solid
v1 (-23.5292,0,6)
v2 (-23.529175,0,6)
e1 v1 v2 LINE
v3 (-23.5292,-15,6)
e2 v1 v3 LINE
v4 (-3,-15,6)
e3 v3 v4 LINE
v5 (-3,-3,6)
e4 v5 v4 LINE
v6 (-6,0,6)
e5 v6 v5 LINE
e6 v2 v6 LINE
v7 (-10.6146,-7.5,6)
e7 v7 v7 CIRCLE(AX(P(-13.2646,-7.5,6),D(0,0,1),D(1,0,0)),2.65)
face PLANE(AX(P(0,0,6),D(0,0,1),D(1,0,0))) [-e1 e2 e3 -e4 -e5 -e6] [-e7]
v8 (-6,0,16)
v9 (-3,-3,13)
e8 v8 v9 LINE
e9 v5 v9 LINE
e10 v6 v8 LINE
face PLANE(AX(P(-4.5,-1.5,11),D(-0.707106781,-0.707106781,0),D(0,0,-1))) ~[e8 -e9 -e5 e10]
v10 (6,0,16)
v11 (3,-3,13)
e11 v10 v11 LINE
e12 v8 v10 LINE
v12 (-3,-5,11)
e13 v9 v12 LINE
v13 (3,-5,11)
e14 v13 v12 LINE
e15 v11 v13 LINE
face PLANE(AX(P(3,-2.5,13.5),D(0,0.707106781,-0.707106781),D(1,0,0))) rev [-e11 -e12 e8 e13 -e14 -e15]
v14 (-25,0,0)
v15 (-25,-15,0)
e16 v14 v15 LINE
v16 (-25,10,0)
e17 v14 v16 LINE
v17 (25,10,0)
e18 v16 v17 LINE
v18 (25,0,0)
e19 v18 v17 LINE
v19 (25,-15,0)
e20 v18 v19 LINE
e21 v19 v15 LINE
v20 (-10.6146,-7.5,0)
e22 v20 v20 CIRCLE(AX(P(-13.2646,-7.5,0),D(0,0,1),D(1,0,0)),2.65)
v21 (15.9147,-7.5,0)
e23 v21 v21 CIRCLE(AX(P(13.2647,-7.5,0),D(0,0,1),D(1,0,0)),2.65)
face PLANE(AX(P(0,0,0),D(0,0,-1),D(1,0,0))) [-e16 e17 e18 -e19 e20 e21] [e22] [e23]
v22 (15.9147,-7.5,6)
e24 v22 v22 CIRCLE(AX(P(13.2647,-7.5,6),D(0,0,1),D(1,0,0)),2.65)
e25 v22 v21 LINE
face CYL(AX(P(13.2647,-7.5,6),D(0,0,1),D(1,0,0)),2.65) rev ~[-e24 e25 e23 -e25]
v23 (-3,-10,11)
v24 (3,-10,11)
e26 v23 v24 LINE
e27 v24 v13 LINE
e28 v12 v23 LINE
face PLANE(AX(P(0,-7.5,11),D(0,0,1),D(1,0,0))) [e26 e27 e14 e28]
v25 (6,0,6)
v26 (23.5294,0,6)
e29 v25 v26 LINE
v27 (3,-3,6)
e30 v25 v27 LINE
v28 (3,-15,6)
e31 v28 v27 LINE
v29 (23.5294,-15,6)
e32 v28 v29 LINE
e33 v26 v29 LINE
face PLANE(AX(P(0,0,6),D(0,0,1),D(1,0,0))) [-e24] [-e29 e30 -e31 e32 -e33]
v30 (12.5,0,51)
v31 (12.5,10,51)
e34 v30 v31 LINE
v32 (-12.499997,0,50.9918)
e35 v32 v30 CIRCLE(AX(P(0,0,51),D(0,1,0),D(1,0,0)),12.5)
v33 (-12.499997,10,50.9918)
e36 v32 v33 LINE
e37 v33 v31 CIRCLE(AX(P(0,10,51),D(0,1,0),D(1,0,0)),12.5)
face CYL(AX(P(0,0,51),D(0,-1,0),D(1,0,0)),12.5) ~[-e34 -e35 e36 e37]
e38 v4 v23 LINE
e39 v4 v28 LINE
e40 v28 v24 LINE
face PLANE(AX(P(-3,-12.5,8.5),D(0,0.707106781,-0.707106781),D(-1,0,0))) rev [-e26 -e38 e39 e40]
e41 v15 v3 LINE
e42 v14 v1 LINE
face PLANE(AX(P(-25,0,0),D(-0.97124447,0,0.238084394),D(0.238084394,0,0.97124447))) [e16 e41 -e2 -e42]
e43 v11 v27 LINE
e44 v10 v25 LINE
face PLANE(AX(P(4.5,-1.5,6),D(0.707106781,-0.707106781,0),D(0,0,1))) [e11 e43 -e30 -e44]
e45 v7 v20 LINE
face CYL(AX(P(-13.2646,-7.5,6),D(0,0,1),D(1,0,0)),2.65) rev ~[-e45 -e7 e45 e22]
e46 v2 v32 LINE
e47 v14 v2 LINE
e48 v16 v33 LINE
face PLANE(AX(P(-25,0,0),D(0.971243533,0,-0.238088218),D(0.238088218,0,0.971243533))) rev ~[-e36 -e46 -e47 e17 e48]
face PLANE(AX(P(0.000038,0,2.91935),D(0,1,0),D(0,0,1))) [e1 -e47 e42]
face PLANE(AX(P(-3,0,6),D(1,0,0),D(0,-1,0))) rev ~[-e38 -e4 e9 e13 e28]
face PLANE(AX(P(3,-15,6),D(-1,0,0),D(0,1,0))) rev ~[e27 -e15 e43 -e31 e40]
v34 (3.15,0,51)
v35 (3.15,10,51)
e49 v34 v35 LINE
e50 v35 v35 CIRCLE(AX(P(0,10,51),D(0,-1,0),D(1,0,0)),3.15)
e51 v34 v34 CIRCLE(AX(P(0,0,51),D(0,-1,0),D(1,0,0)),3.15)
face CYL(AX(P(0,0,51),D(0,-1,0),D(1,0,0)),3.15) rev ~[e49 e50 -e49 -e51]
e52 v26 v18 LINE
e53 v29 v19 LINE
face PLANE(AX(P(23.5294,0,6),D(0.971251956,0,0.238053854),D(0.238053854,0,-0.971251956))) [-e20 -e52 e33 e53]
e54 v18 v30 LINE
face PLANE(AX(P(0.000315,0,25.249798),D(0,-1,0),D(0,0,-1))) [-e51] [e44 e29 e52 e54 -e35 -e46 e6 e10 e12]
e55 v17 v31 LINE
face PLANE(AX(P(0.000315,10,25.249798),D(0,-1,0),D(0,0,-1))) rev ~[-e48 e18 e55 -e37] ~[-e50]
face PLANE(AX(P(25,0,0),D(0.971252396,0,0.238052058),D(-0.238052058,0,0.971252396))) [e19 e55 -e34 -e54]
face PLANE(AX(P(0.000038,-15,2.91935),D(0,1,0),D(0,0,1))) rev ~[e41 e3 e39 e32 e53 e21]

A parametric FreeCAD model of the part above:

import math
import FreeCAD as App
import Part
import Sketcher
from FreeCAD import Vector


def edges_at(feature, points):
    """Names of the edges that pass closest to the given points."""
    edges = feature.Shape.Edges
    near = lambda p: min(range(len(edges)), key=lambda i: edges[i].distToShape(Part.Vertex(*p))[0])
    return sorted({f"Edge{near(p) + 1}" for p in points})

doc = App.newDocument("Part")
params = doc.addObject("Spreadsheet::Sheet", "Params")
for row, (alias, value) in enumerate([
    ("sketch1_diameter", "6.3 mm"),
    ("sketch1_radius", "12.5 mm"),
    ("sketch1_width", "50 mm"),
    ("pad1_length", "10 mm"),
    ("sketch2_width", "50 mm"),
    ("pad2_length", "15 mm"),
    ("sketch3_width", "6 mm"),
    ("sketch3_height", "15 mm"),
    ("pad3_length", "5 mm"),
    ("chamfer_size", "5 mm"),
    ("chamfer2_size", "3 mm"),
    ("sketch4_diameter", "5.3 mm"),
], start=1):
    params.set(f"A{row}", alias)
    params.set(f"B{row}", "=" + value)
    params.setAlias(f"B{row}", alias)

body = doc.addObject("PartDesign::Body", "Body")

# Sketch on XZ plane
sketch1 = doc.addObject("Sketcher::SketchObject", "Sketch")
body.addObject(sketch1)
sketch1.AttachmentSupport = (doc.XZ_Plane, [""])
sketch1.MapMode = "FlatFace"
sketch1.addGeometry(Part.LineSegment(Vector(-25, 0, 0), Vector(25, 0, 0)), False)
sketch1.addGeometry(Part.LineSegment(Vector(25, 0, 0), Vector(12.5, 51, 0)), False)
sketch1.addGeometry(Part.ArcOfCircle(Part.Circle(Vector(0, 51, 0), Vector(0, 0, 1), 12.5), math.radians(0), math.radians(180)), False)
sketch1.addGeometry(Part.LineSegment(Vector(-12.5, 51, 0), Vector(-25, 0, 0)), False)
sketch1.addGeometry(Part.Circle(Vector(0, 51, 0), Vector(0, 0, 1), 3.1), False)
sketch1.addConstraint(Sketcher.Constraint("Coincident", 0, 2, 1, 1))
sketch1.addConstraint(Sketcher.Constraint("Coincident", 1, 2, 2, 1))
sketch1.addConstraint(Sketcher.Constraint("Coincident", 2, 2, 3, 1))
sketch1.addConstraint(Sketcher.Constraint("Coincident", 3, 2, 0, 1))
sketch1.addConstraint(Sketcher.Constraint("Horizontal", 0))
sketch1.addConstraint(Sketcher.Constraint("Coincident", 4, 3, 2, 3))
sketch1.addConstraint(Sketcher.Constraint("Symmetric", 0, 2, 3, 2, -1, 1))
sketch1.addConstraint(Sketcher.Constraint("PointOnObject", 2, 3, -2))
sketch1.addConstraint(Sketcher.Constraint("Horizontal", 4, 3, 1, 2))
sketch1.addConstraint(Sketcher.Constraint("Diameter", 4, 6.3))
sketch1.addConstraint(Sketcher.Constraint("Radius", 2, 12.5))
sketch1.addConstraint(Sketcher.Constraint("DistanceX", 0, 1, 0, 2, 50.0))
sketch1.addConstraint(Sketcher.Constraint("DistanceY", -1, 1, 2, 3, 51.0))
sketch1.addConstraint(Sketcher.Constraint("Distance", 3, 52.5016))
sketch1.setExpression("Constraints[9]", "Params.sketch1_diameter")
sketch1.setExpression("Constraints[10]", "Params.sketch1_radius")
sketch1.setExpression("Constraints[11]", "Params.sketch1_width")
pad1 = doc.addObject("PartDesign::Pad", "Pad")
body.addObject(pad1)
pad1.Profile = sketch1
pad1.setExpression("Length", "Params.pad1_length")
pad1.Reversed = True

# Sketch on XZ plane
sketch2 = doc.addObject("Sketcher::SketchObject", "Sketch001")
body.addObject(sketch2)
sketch2.AttachmentSupport = (doc.XZ_Plane, [""])
sketch2.MapMode = "FlatFace"
sketch2.addGeometry(Part.LineSegment(Vector(24, 6, 0), Vector(-24, 6, 0)), False)
sketch2.addGeometry(Part.LineSegment(Vector(-24, 6, 0), Vector(-25, 0, 0)), False)
sketch2.addGeometry(Part.LineSegment(Vector(-25, 0, 0), Vector(25, 0, 0)), False)
sketch2.addGeometry(Part.LineSegment(Vector(25, 0, 0), Vector(24, 6, 0)), False)
sketch2.addConstraint(Sketcher.Constraint("Coincident", 0, 2, 1, 1))
sketch2.addConstraint(Sketcher.Constraint("Coincident", 1, 2, 2, 1))
sketch2.addConstraint(Sketcher.Constraint("Coincident", 2, 2, 3, 1))
sketch2.addConstraint(Sketcher.Constraint("Coincident", 3, 2, 0, 1))
sketch2.addConstraint(Sketcher.Constraint("Horizontal", 0))
sketch2.addConstraint(Sketcher.Constraint("Horizontal", 2))
sketch2.addConstraint(Sketcher.Constraint("Symmetric", 1, 2, 2, 2, -1, 1))
sketch2.addConstraint(Sketcher.Constraint("Equal", 1, 3))
sketch2.addConstraint(Sketcher.Constraint("DistanceX", 2, 1, 2, 2, 50.0))
sketch2.addConstraint(Sketcher.Constraint("DistanceY", -1, 1, 0, 2, 6.0))
sketch2.addConstraint(Sketcher.Constraint("DistanceX", 0, 2, 0, 1, 47.0586))
sketch2.setExpression("Constraints[8]", "Params.sketch2_width")
pad2 = doc.addObject("PartDesign::Pad", "Pad001")
body.addObject(pad2)
pad2.Profile = sketch2
pad2.setExpression("Length", "Params.pad2_length")

# Sketch on XY plane
sketch3 = doc.addObject("Sketcher::SketchObject", "Sketch002")
body.addObject(sketch3)
sketch3.AttachmentSupport = (doc.XY_Plane, [""])
sketch3.MapMode = "FlatFace"
sketch3.AttachmentOffset = App.Placement(Vector(0, 0, 6), App.Rotation())
sketch3.addGeometry(Part.LineSegment(Vector(-3, -15, 0), Vector(3, -15, 0)), False)
sketch3.addGeometry(Part.LineSegment(Vector(3, -15, 0), Vector(3, 0, 0)), False)
sketch3.addGeometry(Part.LineSegment(Vector(3, 0, 0), Vector(-3, 0, 0)), False)
sketch3.addGeometry(Part.LineSegment(Vector(-3, 0, 0), Vector(-3, -15, 0)), False)
sketch3.addConstraint(Sketcher.Constraint("Coincident", 0, 2, 1, 1))
sketch3.addConstraint(Sketcher.Constraint("Coincident", 1, 2, 2, 1))
sketch3.addConstraint(Sketcher.Constraint("Coincident", 2, 2, 3, 1))
sketch3.addConstraint(Sketcher.Constraint("Coincident", 3, 2, 0, 1))
sketch3.addConstraint(Sketcher.Constraint("Horizontal", 0))
sketch3.addConstraint(Sketcher.Constraint("Vertical", 1))
sketch3.addConstraint(Sketcher.Constraint("Horizontal", 2))
sketch3.addConstraint(Sketcher.Constraint("Vertical", 3))
sketch3.addConstraint(Sketcher.Constraint("Symmetric", 1, 2, 2, 2, -1, 1))
sketch3.addConstraint(Sketcher.Constraint("DistanceX", 0, 1, 0, 2, 6.0))
sketch3.addConstraint(Sketcher.Constraint("DistanceY", 1, 1, 1, 2, 15.0))
sketch3.setExpression("Constraints[9]", "Params.sketch3_width")
sketch3.setExpression("Constraints[10]", "Params.sketch3_height")
pad3 = doc.addObject("PartDesign::Pad", "Pad002")
body.addObject(pad3)
pad3.Profile = sketch3
pad3.setExpression("Length", "Params.pad3_length")
doc.recompute()

chamfer = doc.addObject("PartDesign::Chamfer", "Chamfer")
body.addObject(chamfer)
chamfer.Base = (pad3, edges_at(pad3, [(0, 0, 11), (0, -15, 11)]))
chamfer.setExpression("Size", "Params.chamfer_size")
doc.recompute()

chamfer2 = doc.addObject("PartDesign::Chamfer", "Chamfer001")
body.addObject(chamfer2)
chamfer2.Base = (chamfer, edges_at(chamfer, [(3, 0, 11), (-3, 0, 11)]))
chamfer2.setExpression("Size", "Params.chamfer2_size")

# Sketch on XY plane
sketch4 = doc.addObject("Sketcher::SketchObject", "Sketch003")
body.addObject(sketch4)
sketch4.AttachmentSupport = (doc.XY_Plane, [""])
sketch4.MapMode = "FlatFace"
sketch4.AttachmentOffset = App.Placement(Vector(0, 0, 6), App.Rotation())
sketch4.addGeometry(Part.Circle(Vector(13.3, -7.5, 0), Vector(0, 0, 1), 2.6), False)
sketch4.addGeometry(Part.Circle(Vector(-13.3, -7.5, 0), Vector(0, 0, 1), 2.6), False)
sketch4.addConstraint(Sketcher.Constraint("Equal", 0, 1))
sketch4.addConstraint(Sketcher.Constraint("Symmetric", 0, 3, 1, 3, -2))
sketch4.addConstraint(Sketcher.Constraint("Diameter", 0, 5.3))
sketch4.addConstraint(Sketcher.Constraint("DistanceY", 0, 3, -1, 1, 7.5))
sketch4.addConstraint(Sketcher.Constraint("DistanceX", -1, 1, 0, 3, 13.2647))
sketch4.setExpression("Constraints[2]", "Params.sketch4_diameter")
pocket1 = doc.addObject("PartDesign::Pocket", "Pocket")
body.addObject(pocket1)
pocket1.Profile = sketch4
pocket1.Type = "UpToFirst"

doc.recompute()
